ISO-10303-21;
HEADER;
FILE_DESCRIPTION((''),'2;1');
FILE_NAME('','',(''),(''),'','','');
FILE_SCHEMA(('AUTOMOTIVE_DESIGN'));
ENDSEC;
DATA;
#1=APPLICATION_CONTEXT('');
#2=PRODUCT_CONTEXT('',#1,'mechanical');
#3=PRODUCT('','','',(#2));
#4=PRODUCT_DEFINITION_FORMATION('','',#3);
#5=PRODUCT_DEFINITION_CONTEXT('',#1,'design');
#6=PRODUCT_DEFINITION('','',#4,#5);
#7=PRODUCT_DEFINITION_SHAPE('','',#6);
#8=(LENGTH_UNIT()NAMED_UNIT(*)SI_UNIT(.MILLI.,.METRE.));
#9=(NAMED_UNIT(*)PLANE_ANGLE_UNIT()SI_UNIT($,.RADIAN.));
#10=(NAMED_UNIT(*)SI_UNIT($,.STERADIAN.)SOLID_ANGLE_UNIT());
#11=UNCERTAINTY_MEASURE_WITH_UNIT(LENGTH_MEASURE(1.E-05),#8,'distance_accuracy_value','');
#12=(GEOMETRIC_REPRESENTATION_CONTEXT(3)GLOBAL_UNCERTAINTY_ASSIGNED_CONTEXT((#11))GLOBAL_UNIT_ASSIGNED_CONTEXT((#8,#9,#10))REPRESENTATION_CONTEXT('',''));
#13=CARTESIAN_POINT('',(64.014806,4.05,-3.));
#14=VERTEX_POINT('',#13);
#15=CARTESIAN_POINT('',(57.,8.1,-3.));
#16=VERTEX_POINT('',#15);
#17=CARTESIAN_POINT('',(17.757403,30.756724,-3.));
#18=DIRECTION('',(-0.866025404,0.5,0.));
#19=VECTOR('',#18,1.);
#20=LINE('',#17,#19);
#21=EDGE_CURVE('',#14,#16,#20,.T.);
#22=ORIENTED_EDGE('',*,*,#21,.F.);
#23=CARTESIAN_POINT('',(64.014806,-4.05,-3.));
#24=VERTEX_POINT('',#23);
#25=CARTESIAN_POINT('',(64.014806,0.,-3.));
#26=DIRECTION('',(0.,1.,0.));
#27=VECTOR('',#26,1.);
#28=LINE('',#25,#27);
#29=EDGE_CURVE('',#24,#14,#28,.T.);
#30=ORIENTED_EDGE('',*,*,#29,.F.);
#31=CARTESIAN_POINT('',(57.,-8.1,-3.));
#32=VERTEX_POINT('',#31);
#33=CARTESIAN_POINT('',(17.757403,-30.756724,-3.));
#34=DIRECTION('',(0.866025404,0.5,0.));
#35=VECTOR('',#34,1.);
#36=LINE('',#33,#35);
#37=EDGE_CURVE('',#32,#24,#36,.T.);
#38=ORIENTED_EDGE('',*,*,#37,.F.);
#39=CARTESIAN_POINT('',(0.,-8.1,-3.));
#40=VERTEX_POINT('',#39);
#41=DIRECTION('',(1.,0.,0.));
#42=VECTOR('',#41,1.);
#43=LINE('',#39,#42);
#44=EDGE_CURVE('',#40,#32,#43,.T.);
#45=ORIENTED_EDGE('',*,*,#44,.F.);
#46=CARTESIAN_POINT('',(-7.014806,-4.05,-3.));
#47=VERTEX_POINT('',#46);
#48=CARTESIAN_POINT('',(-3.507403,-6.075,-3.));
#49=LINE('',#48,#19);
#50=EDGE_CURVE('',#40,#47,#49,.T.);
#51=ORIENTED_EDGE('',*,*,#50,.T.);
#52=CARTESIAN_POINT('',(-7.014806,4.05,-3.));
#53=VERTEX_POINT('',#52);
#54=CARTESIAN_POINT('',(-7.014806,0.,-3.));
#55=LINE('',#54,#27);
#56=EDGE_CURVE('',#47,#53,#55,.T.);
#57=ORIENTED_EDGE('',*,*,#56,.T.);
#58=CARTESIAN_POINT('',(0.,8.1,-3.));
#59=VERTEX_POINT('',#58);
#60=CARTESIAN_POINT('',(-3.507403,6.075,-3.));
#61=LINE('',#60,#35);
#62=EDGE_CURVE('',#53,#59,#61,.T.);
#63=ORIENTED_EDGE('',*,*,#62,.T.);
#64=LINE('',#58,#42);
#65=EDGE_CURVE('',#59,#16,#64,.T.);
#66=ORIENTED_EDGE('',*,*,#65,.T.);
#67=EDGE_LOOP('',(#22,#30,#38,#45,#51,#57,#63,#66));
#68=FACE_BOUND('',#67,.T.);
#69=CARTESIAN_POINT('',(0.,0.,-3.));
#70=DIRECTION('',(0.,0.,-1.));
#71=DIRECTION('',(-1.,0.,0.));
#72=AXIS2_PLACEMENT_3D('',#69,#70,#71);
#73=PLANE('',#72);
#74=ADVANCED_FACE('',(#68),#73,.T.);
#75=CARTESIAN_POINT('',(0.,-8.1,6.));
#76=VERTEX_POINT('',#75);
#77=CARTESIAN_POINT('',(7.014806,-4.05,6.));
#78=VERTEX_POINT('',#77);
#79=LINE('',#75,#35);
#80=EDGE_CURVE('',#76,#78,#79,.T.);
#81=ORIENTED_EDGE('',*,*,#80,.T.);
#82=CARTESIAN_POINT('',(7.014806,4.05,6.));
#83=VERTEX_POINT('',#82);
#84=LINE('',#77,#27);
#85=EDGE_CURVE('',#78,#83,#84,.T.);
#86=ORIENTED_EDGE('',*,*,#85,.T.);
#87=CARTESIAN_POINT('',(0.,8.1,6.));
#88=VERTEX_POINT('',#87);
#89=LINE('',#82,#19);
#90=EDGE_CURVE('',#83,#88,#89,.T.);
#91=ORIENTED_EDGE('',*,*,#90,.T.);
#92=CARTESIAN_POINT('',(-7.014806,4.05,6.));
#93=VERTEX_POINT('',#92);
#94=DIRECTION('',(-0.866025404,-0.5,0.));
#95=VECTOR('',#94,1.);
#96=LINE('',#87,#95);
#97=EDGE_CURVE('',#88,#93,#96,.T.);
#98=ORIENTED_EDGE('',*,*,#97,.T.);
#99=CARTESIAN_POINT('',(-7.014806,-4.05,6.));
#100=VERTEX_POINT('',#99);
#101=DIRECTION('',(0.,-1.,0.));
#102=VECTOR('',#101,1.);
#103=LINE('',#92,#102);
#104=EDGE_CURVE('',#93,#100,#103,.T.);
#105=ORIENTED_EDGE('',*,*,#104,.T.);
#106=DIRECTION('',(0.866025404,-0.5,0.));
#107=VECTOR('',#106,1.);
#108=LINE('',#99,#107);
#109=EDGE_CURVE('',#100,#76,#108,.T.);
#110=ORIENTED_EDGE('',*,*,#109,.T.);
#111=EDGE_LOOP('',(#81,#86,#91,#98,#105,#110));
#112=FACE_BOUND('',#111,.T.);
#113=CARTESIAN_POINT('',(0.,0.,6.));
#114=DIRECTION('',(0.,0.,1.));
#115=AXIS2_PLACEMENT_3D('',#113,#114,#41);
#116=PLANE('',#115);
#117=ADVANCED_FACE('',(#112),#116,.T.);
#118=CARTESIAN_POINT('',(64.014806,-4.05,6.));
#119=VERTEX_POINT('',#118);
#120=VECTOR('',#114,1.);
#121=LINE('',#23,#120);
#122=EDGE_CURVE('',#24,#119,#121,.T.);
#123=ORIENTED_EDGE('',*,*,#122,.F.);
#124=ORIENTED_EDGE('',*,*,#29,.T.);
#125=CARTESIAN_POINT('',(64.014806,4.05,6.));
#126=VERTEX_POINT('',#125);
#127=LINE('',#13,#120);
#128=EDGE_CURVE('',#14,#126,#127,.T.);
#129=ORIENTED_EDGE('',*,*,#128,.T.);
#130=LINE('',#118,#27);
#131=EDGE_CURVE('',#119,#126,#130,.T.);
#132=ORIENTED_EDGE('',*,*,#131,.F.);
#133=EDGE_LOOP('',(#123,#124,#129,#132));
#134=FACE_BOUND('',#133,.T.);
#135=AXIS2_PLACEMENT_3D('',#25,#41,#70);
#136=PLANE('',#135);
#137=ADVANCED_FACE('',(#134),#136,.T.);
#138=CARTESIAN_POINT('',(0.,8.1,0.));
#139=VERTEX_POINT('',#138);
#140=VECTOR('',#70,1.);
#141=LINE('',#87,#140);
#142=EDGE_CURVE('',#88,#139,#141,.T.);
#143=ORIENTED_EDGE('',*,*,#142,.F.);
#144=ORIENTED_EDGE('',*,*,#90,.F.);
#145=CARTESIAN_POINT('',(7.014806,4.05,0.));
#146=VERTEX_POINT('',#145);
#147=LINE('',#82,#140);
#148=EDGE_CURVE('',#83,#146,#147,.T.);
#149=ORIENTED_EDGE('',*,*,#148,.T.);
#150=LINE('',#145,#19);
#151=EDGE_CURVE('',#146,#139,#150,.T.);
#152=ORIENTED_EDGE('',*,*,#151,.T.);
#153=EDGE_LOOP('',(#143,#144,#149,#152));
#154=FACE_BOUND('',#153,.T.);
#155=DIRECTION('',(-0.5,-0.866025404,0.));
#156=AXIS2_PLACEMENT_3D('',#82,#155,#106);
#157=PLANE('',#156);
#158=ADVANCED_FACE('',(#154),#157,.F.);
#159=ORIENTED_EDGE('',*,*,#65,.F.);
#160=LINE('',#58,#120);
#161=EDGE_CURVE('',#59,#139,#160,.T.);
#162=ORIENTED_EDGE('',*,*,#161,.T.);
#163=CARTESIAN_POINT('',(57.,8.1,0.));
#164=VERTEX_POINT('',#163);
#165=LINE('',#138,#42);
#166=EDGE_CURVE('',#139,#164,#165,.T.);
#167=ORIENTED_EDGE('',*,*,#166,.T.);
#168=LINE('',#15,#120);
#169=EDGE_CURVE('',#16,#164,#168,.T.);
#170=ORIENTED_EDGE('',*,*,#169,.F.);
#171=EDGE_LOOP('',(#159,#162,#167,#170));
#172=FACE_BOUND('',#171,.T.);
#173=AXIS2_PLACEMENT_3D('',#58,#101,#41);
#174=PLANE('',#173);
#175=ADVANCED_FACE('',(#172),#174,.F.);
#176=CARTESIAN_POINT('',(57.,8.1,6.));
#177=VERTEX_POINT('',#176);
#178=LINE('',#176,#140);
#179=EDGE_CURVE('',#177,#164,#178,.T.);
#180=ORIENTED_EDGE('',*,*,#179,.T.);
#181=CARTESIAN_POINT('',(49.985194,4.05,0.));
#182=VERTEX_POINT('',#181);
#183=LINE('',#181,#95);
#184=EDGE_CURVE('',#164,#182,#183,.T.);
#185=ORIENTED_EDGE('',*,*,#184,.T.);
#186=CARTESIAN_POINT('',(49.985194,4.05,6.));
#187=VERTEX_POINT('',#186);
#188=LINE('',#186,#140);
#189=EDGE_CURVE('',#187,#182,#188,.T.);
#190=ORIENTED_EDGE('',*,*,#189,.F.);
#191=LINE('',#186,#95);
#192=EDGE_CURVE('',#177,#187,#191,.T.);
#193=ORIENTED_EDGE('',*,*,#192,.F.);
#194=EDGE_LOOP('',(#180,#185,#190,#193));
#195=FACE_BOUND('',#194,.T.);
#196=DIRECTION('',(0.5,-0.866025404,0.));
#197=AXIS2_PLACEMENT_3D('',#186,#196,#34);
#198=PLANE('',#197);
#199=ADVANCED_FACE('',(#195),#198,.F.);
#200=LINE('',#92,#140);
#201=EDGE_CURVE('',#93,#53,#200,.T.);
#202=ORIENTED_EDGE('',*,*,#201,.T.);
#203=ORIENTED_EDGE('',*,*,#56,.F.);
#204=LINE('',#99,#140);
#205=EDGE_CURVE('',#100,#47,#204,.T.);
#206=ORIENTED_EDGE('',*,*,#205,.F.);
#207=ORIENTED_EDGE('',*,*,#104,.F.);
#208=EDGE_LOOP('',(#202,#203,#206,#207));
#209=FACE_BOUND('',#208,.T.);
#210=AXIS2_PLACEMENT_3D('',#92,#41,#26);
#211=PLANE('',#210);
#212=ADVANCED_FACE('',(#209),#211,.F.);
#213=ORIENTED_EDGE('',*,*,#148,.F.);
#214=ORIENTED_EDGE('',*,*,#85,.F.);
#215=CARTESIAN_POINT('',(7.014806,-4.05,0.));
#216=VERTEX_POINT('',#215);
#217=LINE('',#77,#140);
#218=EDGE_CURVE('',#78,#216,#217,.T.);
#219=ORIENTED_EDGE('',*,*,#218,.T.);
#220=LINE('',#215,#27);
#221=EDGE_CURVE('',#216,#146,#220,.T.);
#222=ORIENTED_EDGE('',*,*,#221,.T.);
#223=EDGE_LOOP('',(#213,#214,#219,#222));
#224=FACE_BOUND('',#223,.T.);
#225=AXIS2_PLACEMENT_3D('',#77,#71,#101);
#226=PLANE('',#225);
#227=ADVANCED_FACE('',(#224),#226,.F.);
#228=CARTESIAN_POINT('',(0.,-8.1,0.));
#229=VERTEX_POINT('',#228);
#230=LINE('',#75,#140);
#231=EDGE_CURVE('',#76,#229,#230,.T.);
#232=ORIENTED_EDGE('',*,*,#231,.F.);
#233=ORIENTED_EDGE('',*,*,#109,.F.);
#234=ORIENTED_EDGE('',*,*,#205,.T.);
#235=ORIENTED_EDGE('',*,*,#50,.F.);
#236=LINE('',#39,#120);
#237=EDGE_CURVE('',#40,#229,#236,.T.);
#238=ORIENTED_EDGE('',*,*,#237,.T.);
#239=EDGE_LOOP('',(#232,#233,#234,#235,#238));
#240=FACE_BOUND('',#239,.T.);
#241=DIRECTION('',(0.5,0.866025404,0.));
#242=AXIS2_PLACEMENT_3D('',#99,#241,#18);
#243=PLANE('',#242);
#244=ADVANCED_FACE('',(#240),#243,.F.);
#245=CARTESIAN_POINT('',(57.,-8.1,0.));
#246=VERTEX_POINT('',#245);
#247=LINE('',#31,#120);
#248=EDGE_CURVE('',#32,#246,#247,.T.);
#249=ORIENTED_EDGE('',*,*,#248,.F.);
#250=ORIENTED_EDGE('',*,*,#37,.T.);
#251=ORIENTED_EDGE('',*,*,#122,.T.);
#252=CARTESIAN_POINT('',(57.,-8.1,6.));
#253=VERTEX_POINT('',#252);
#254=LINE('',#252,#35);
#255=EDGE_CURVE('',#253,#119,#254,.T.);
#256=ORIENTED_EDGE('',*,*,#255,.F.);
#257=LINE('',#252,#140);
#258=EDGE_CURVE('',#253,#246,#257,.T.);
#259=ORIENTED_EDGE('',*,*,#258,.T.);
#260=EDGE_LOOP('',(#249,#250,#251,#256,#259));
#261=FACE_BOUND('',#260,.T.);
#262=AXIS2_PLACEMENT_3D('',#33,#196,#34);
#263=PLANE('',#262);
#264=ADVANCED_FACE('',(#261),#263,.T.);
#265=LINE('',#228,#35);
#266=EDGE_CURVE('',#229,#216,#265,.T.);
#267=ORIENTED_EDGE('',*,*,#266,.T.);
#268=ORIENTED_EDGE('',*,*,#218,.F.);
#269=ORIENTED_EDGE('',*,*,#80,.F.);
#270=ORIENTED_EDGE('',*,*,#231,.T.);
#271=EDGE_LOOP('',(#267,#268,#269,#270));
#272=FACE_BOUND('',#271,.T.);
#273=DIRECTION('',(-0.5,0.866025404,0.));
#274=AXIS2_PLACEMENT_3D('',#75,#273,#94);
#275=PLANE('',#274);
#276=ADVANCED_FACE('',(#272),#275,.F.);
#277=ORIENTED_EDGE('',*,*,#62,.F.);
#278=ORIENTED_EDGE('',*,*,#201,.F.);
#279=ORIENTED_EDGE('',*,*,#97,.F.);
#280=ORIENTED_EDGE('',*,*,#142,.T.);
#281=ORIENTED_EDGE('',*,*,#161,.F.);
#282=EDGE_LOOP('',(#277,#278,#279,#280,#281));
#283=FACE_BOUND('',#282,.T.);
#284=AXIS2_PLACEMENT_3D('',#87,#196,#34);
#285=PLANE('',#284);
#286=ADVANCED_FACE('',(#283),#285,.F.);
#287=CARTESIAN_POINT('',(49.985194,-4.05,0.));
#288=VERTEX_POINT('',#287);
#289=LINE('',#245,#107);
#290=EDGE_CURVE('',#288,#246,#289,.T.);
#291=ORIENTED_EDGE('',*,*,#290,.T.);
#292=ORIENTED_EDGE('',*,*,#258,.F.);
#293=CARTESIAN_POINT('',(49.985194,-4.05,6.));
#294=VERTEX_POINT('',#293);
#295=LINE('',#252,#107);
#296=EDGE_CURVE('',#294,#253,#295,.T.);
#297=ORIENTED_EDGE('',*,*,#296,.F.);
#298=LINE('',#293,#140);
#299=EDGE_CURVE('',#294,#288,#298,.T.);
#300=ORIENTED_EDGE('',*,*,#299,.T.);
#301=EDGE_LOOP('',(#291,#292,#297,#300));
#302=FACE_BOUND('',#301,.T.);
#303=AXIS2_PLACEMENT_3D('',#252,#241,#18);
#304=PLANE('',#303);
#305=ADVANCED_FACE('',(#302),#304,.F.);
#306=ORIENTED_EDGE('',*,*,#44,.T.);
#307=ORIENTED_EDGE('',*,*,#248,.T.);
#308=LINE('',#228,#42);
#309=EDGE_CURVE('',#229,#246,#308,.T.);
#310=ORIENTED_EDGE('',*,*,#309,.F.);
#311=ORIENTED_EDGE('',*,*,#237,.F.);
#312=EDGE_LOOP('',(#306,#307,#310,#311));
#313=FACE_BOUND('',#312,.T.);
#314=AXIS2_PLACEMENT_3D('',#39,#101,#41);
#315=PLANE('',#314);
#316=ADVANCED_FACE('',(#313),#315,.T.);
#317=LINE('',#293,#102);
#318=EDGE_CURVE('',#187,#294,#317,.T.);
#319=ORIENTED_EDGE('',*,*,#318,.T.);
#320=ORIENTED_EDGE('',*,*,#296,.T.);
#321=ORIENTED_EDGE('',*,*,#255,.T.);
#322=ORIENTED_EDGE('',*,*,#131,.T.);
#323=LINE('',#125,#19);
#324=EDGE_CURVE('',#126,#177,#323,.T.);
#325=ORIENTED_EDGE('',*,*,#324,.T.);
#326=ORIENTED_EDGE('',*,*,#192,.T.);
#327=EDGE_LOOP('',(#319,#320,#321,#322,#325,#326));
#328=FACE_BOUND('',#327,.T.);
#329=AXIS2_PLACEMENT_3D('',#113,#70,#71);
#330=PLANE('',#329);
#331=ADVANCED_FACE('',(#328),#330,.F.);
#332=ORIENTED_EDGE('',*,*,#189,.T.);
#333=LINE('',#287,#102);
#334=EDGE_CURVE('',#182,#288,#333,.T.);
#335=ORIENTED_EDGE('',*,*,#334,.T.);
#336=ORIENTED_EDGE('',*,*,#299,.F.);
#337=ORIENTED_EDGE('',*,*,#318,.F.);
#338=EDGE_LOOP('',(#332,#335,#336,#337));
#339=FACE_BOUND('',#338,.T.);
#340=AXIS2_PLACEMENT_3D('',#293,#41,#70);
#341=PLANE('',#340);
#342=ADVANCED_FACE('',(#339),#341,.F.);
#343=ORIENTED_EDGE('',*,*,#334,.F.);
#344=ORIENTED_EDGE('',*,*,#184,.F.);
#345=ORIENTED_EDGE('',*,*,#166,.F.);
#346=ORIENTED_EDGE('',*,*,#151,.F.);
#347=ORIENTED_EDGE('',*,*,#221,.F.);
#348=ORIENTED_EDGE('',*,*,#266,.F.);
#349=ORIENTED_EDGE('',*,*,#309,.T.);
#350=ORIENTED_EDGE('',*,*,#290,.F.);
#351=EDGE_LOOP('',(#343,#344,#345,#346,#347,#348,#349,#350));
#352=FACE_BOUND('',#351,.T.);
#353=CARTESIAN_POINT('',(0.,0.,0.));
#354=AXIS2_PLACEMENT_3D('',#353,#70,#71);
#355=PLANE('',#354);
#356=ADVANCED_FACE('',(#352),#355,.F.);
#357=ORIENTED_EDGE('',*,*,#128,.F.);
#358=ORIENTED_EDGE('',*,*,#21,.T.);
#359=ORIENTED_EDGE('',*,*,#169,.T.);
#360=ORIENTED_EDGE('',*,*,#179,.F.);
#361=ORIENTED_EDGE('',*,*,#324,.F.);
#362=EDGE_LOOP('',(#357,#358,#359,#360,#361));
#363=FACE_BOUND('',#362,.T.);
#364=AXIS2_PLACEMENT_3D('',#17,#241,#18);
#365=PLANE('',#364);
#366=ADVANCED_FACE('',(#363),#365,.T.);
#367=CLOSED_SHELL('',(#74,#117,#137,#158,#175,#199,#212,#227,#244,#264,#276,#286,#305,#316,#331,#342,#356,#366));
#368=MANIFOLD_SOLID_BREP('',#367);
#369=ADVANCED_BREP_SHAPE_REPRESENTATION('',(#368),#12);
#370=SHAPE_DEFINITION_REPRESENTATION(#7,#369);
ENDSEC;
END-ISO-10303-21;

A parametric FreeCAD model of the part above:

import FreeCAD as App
import Part
import Sketcher

V = App.Vector
Q = App.Units.Quantity


def add_polygon(sketch, points):
    """Adds a closed chain of lines whose ends are joined by coincident constraints."""
    first, n = sketch.GeometryCount, len(points)
    for a, b in zip(points, points[1:] + points[:1]):
        sketch.addGeometry(Part.LineSegment(App.Vector(*a, 0), App.Vector(*b, 0)), False)
    for i in range(n):
        sketch.addConstraint(Sketcher.Constraint("Coincident", first + i, 2, first + (i + 1) % n, 1))

doc = App.newDocument("Part")
body = doc.addObject("PartDesign::Body", "Body")

# Sketch on XY plane
sketch1 = body.newObject("Sketcher::SketchObject", "Sketch")
sketch1.AttachmentSupport = (doc.getObject("XY_Plane"), [""])
sketch1.MapMode = "FlatFace"
add_polygon(sketch1, [(0, 8.1), (-7.014806, 4.05), (-7.014806, -4.05), (0, -8.1), (7.014806, -4.05), (7.014806, 4.05)])  # lines 0-5
sketch1.addConstraint([
    Sketcher.Constraint("Vertical", 1),
    Sketcher.Constraint("Vertical", 4),
    Sketcher.Constraint("Symmetric", 0, 2, 3, 2, -1, 1),
    Sketcher.Constraint("Symmetric", 2, 2, 5, 2, -1, 1),
    Sketcher.Constraint("PointOnObject", 2, 2, -2),
    Sketcher.Constraint("Parallel", 2, 5),
    Sketcher.Constraint("Horizontal", 1, 2, 3, 2),
    Sketcher.Constraint("Angle", 0, Q("-150 deg")),
    Sketcher.Constraint("DistanceY", 1, 2, 1, 1, Q("8.1 mm")),
    Sketcher.Constraint("Distance", 0, Q("8.1 mm")),
])
pad1 = body.newObject("PartDesign::Pad", "Pad")
pad1.Profile = sketch1
pad1.Length = 6

# Sketch on XY plane
sketch2 = body.newObject("Sketcher::SketchObject", "Sketch001")
sketch2.AttachmentSupport = (doc.getObject("XY_Plane"), [""])
sketch2.MapMode = "FlatFace"
add_polygon(sketch2, [(-7.014806, 4.05), (0, 8.1), (57, 8.1), (64.014806, 4.05), (64.014806, -4.05), (57, -8.1), (0, -8.1), (-7.014806, -4.05)])  # lines 0-7
sketch2.addConstraint([
    Sketcher.Constraint("Horizontal", 1),
    Sketcher.Constraint("Vertical", 3),
    Sketcher.Constraint("Horizontal", 5),
    Sketcher.Constraint("Vertical", 7),
    Sketcher.Constraint("Symmetric", 0, 2, 5, 2, -1, 1),
    Sketcher.Constraint("PointOnObject", 0, 2, -2),
    Sketcher.Constraint("Parallel", 0, 4),
    Sketcher.Constraint("Parallel", 2, 6),
    Sketcher.Constraint("Horizontal", 3, 2, 6, 2),
    Sketcher.Constraint("Horizontal", 2, 2, 7, 2),
    Sketcher.Constraint("Vertical", 1, 2, 4, 2),
    Sketcher.Constraint("DistanceX", 1, 1, 1, 2, Q("57 mm")),
    Sketcher.Constraint("Angle", 0, Q("30 deg")),
    Sketcher.Constraint("DistanceY", 3, 2, 3, 1, Q("8.1 mm")),
    Sketcher.Constraint("Distance", 0, Q("8.1 mm")),
])
pad2 = body.newObject("PartDesign::Pad", "Pad001")
pad2.Profile = sketch2
pad2.Length = 3
pad2.Reversed = True

# Sketch on XY plane
sketch3 = body.newObject("Sketcher::SketchObject", "Sketch002")
sketch3.AttachmentSupport = (doc.getObject("XY_Plane"), [""])
sketch3.MapMode = "FlatFace"
add_polygon(sketch3, [(64.014806, -4.05), (64.014806, 4.05), (57, 8.1), (49.985194, 4.05), (49.985194, -4.05), (57, -8.1)])  # lines 0-5
sketch3.addConstraint([
    Sketcher.Constraint("Vertical", 0),
    Sketcher.Constraint("Vertical", 3),
    Sketcher.Constraint("Symmetric", 1, 2, 4, 2, -1),
    Sketcher.Constraint("Parallel", 1, 4),
    Sketcher.Constraint("Parallel", 2, 5),
    Sketcher.Constraint("Horizontal", 0, 2, 2, 2),
    Sketcher.Constraint("Horizontal", 3, 2, 5, 2),
    Sketcher.Constraint("Angle", 1, Q("150 deg")),
    Sketcher.Constraint("DistanceY", 0, 1, 0, 2, Q("8.1 mm")),
    Sketcher.Constraint("DistanceX", -1, 1, 1, 2, Q("57 mm")),
    Sketcher.Constraint("Distance", 1, Q("8.1 mm")),
])
pad3 = body.newObject("PartDesign::Pad", "Pad002")
pad3.Profile = sketch3
pad3.Length = 6

doc.recompute()
